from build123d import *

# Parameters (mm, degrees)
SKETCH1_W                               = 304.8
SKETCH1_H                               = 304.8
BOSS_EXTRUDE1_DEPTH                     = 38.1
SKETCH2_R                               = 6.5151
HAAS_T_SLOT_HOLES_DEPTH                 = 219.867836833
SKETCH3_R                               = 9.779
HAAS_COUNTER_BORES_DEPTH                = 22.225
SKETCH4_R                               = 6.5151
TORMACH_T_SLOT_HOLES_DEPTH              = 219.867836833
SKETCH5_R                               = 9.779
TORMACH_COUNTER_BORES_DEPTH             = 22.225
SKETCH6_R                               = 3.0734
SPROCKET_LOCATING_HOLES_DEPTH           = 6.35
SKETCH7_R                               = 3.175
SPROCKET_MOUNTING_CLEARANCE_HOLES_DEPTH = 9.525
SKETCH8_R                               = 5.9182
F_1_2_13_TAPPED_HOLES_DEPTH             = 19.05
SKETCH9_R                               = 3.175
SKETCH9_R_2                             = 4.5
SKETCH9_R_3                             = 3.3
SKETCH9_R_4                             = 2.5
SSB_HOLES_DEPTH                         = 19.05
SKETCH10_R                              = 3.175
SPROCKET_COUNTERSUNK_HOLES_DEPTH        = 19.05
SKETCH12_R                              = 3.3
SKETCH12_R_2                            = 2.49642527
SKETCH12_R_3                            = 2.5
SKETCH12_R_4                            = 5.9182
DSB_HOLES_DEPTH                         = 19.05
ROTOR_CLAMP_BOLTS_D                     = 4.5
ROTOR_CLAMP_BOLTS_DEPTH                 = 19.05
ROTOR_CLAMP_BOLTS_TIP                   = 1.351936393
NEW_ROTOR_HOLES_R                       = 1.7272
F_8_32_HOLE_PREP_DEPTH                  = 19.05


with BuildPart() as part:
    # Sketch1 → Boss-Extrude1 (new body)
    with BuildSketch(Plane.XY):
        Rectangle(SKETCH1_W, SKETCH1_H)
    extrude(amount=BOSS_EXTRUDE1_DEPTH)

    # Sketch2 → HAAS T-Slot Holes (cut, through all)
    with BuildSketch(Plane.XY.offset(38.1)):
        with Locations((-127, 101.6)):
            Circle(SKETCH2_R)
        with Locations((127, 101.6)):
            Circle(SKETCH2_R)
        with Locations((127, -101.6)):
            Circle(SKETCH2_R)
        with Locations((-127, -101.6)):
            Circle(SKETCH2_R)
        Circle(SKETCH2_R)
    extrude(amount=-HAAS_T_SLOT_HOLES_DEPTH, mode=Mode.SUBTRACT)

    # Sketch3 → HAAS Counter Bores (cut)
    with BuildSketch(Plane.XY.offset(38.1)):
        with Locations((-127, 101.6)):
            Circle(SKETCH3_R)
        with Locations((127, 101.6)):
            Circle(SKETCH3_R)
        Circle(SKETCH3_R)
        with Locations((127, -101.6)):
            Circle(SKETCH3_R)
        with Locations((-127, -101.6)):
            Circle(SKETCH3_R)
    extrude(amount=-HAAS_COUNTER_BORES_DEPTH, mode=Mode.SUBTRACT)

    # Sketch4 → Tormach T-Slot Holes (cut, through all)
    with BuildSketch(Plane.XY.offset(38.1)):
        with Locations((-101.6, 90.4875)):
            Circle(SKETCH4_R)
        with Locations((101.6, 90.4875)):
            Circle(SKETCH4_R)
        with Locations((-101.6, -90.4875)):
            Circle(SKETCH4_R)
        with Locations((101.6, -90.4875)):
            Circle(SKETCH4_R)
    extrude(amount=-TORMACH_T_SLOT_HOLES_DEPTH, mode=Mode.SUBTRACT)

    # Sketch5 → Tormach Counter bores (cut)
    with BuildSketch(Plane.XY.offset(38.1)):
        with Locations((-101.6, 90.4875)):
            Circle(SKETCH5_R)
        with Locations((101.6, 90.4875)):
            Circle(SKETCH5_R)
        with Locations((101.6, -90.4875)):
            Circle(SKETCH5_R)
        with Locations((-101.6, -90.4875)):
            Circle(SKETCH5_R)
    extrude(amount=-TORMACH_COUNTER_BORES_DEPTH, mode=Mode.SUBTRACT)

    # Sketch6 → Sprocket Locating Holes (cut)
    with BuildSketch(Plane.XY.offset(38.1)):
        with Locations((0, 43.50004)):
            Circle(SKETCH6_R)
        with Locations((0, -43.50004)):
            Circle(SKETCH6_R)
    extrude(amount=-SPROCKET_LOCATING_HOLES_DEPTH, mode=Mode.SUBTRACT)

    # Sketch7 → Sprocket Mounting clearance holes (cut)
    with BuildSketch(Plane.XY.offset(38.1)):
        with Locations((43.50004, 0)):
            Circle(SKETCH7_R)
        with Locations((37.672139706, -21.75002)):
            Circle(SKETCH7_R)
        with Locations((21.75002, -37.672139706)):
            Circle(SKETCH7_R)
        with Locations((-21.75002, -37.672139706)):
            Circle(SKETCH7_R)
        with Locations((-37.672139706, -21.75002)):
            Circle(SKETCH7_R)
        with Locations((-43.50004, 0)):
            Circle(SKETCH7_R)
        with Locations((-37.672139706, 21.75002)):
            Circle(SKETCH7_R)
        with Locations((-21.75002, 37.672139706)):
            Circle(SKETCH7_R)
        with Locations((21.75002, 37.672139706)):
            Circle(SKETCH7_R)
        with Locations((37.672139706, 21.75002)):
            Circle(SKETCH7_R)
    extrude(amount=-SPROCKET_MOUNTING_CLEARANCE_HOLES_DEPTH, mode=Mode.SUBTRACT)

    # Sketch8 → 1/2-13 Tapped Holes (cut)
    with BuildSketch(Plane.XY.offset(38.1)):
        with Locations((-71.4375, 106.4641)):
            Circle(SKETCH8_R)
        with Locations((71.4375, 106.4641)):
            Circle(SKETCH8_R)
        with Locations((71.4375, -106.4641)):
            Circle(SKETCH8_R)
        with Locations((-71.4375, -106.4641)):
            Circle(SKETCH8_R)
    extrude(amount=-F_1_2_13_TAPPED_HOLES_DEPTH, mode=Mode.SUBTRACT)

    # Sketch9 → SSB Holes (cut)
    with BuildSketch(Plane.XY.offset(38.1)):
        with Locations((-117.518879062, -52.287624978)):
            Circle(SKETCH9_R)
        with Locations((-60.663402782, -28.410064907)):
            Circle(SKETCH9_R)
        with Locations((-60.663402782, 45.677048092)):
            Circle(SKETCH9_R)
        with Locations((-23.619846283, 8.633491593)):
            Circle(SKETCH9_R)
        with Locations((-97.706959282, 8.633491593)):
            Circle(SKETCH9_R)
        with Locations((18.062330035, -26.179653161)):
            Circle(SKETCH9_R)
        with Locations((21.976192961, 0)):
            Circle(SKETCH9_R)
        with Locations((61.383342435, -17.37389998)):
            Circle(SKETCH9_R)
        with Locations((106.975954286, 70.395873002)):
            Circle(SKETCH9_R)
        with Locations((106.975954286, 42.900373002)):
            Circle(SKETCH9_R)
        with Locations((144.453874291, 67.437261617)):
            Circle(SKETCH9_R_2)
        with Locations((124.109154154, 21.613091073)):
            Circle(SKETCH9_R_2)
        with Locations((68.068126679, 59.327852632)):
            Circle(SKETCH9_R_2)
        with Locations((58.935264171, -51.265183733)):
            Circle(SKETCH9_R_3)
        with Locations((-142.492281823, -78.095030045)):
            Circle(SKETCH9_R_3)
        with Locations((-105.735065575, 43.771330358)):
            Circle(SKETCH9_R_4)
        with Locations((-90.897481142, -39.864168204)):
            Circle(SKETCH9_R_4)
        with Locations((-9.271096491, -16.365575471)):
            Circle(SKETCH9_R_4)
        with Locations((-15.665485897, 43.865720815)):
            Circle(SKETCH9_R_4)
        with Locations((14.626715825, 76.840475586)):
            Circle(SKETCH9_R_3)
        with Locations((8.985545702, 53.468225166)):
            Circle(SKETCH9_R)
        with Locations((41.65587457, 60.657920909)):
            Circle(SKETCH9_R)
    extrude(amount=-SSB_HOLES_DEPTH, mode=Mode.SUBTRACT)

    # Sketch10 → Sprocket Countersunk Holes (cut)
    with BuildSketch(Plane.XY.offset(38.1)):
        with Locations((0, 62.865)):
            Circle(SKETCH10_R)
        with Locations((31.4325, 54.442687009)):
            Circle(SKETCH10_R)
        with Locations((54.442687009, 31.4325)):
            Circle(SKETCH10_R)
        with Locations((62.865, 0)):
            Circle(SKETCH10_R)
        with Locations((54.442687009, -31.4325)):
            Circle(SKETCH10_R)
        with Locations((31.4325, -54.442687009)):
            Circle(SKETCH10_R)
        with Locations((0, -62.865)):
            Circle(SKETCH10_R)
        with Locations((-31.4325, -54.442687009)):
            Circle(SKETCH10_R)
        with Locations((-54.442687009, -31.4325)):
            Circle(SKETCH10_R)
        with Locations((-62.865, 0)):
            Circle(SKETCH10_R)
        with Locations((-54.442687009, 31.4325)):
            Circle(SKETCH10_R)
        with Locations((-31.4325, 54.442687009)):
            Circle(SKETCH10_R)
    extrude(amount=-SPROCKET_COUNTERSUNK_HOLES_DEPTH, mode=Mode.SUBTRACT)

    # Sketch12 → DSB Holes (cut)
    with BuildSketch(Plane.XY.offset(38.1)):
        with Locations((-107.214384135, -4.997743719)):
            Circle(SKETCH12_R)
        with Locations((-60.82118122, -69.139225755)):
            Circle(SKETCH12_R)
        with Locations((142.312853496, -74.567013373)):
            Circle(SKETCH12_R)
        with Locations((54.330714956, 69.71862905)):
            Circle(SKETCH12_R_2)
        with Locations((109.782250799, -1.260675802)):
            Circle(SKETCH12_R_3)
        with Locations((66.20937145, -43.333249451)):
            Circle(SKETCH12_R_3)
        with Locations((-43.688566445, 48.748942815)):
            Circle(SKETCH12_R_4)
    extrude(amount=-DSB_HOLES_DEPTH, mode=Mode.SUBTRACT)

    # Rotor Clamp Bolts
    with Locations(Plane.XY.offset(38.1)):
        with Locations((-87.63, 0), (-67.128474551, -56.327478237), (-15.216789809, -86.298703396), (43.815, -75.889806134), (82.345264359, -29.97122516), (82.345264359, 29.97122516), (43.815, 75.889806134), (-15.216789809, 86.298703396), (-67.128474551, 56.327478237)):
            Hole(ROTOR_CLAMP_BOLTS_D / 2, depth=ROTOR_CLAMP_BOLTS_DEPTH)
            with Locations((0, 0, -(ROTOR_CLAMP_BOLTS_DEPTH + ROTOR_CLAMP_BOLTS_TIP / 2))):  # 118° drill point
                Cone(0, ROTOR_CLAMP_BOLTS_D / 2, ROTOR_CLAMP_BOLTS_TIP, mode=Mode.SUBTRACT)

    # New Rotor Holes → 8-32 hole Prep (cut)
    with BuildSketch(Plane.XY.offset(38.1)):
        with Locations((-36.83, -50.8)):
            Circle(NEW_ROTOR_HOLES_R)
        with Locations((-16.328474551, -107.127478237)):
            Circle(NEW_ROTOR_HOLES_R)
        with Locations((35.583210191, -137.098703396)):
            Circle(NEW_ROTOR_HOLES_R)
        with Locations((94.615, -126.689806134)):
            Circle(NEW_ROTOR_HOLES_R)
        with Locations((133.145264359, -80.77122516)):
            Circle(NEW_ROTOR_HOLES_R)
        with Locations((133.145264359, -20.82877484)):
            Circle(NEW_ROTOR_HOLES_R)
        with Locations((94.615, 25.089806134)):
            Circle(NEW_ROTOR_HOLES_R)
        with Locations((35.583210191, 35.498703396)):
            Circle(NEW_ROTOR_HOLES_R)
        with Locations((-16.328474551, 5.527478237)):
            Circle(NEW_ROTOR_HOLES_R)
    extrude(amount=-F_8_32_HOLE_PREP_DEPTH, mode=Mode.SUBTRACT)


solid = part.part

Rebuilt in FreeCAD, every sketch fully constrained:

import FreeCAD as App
import Part
import Sketcher

V = App.Vector
Q = App.Units.Quantity


def add_polygon(sketch, points):
    """Adds a closed chain of lines whose ends are joined by coincident constraints."""
    first, n = sketch.GeometryCount, len(points)
    for a, b in zip(points, points[1:] + points[:1]):
        sketch.addGeometry(Part.LineSegment(App.Vector(*a, 0), App.Vector(*b, 0)), False)
    for i in range(n):
        sketch.addConstraint(Sketcher.Constraint("Coincident", first + i, 2, first + (i + 1) % n, 1))

doc = App.newDocument("Part")
body = doc.addObject("PartDesign::Body", "Body")

# Sketch on XY plane
sketch1 = doc.addObject("Sketcher::SketchObject", "Sketch")
body.addObject(sketch1)
sketch1.AttachmentSupport = (doc.XY_Plane, [""])
sketch1.MapMode = "FlatFace"
add_polygon(sketch1, [(-152, 152), (-152, -152), (152, -152), (152, 152)])  # lines 0-3
sketch1.addConstraint([
    Sketcher.Constraint("Vertical", 0),
    Sketcher.Constraint("Horizontal", 1),
    Sketcher.Constraint("Vertical", 2),
    Sketcher.Constraint("Horizontal", 3),
    Sketcher.Constraint("Symmetric", 0, 2, 2, 2, -1, 1),
    Sketcher.Constraint("Equal", 3, 0),
    Sketcher.Constraint("DistanceX", 1, 1, 1, 2, Q("12 in")),
])
pad1 = doc.addObject("PartDesign::Pad", "Pad")
body.addObject(pad1)
pad1.Profile = sketch1
pad1.Length = Q("1.5 in")

# Sketch on XY plane
sketch2 = doc.addObject("Sketcher::SketchObject", "Sketch001")
body.addObject(sketch2)
sketch2.AttachmentSupport = (doc.XY_Plane, [""])
sketch2.MapMode = "FlatFace"
sketch2.AttachmentOffset = App.Placement(V(0, 0, 1.5 * 25.4), App.Rotation())
sketch2.addGeometry([
    Part.Circle(V(-127, 102, 0), V(0, 0, 1), 7),  # 0
    Part.Circle(V(127, 102, 0), V(0, 0, 1), 7),  # 1
    Part.Circle(V(127, -102, 0), V(0, 0, 1), 7),  # 2
    Part.Circle(V(-127, -102, 0), V(0, 0, 1), 7),  # 3
    Part.Circle(V(0, 0, 0), V(0, 0, 1), 7),  # 4
], False)
sketch2.addConstraint([
    Sketcher.Constraint("Coincident", 4, 3, -1, 1),
    Sketcher.Constraint("Equal", 0, 1),
    Sketcher.Constraint("Equal", 1, 2),
    Sketcher.Constraint("Equal", 2, 3),
    Sketcher.Constraint("Equal", 3, 4),
    Sketcher.Constraint("Symmetric", 0, 3, 2, 3, -1, 1),
    Sketcher.Constraint("Symmetric", 1, 3, 3, 3, -1, 1),
    Sketcher.Constraint("Symmetric", 0, 3, 1, 3, -2),
    Sketcher.Constraint("Diameter", 0, Q("0.513 in")),
    Sketcher.Constraint("DistanceX", 0, 3, -1, 1, Q("5 in")),
    Sketcher.Constraint("DistanceY", -1, 1, 0, 3, Q("4 in")),
])
pocket1 = doc.addObject("PartDesign::Pocket", "Pocket")
body.addObject(pocket1)
pocket1.Profile = sketch2
pocket1.Type = "ThroughAll"

# Sketch on XY plane
sketch3 = doc.addObject("Sketcher::SketchObject", "Sketch002")
body.addObject(sketch3)
sketch3.AttachmentSupport = (doc.XY_Plane, [""])
sketch3.MapMode = "FlatFace"
sketch3.AttachmentOffset = App.Placement(V(0, 0, 1.5 * 25.4), App.Rotation())
sketch3.addGeometry([
    Part.Circle(V(-127, 102, 0), V(0, 0, 1), 10),  # 0
    Part.Circle(V(127, 102, 0), V(0, 0, 1), 10),  # 1
    Part.Circle(V(0, 0, 0), V(0, 0, 1), 10),  # 2
    Part.Circle(V(127, -102, 0), V(0, 0, 1), 10),  # 3
    Part.Circle(V(-127, -102, 0), V(0, 0, 1), 10),  # 4
], False)
sketch3.addConstraint([
    Sketcher.Constraint("Coincident", 2, 3, -1, 1),
    Sketcher.Constraint("Equal", 0, 1),
    Sketcher.Constraint("Equal", 1, 2),
    Sketcher.Constraint("Equal", 2, 3),
    Sketcher.Constraint("Equal", 3, 4),
    Sketcher.Constraint("Symmetric", 0, 3, 3, 3, -1, 1),
    Sketcher.Constraint("Symmetric", 1, 3, 4, 3, -1, 1),
    Sketcher.Constraint("Symmetric", 0, 3, 1, 3, -2),
    Sketcher.Constraint("Diameter", 0, Q("0.77 in")),
    Sketcher.Constraint("DistanceX", 0, 3, -1, 1, Q("5 in")),
    Sketcher.Constraint("DistanceY", -1, 1, 0, 3, Q("4 in")),
])
pocket2 = doc.addObject("PartDesign::Pocket", "Pocket001")
body.addObject(pocket2)
pocket2.Profile = sketch3
pocket2.Length = Q("0.875 in")

# Sketch on XY plane
sketch4 = doc.addObject("Sketcher::SketchObject", "Sketch003")
body.addObject(sketch4)
sketch4.AttachmentSupport = (doc.XY_Plane, [""])
sketch4.MapMode = "FlatFace"
sketch4.AttachmentOffset = App.Placement(V(0, 0, 1.5 * 25.4), App.Rotation())
sketch4.addGeometry([
    Part.Circle(V(-102, 90, 0), V(0, 0, 1), 7),
    Part.Circle(V(102, 90, 0), V(0, 0, 1), 7),
    Part.Circle(V(-102, -90, 0), V(0, 0, 1), 7),
    Part.Circle(V(102, -90, 0), V(0, 0, 1), 7),
], False)
sketch4.addConstraint([
    Sketcher.Constraint("Equal", 0, 1),
    Sketcher.Constraint("Equal", 1, 2),
    Sketcher.Constraint("Equal", 2, 3),
    Sketcher.Constraint("Symmetric", 1, 3, 2, 3, -1, 1),
    Sketcher.Constraint("Symmetric", 0, 3, 3, 3, -1, 1),
    Sketcher.Constraint("Symmetric", 0, 3, 1, 3, -2),
    Sketcher.Constraint("Diameter", 0, Q("0.513 in")),
    Sketcher.Constraint("DistanceX", 0, 3, -1, 1, Q("4 in")),
    Sketcher.Constraint("DistanceY", -1, 1, 0, 3, Q("3.5625 in")),
])
pocket3 = doc.addObject("PartDesign::Pocket", "Pocket002")
body.addObject(pocket3)
pocket3.Profile = sketch4
pocket3.Type = "ThroughAll"

# Sketch on XY plane
sketch5 = doc.addObject("Sketcher::SketchObject", "Sketch004")
body.addObject(sketch5)
sketch5.AttachmentSupport = (doc.XY_Plane, [""])
sketch5.MapMode = "FlatFace"
sketch5.AttachmentOffset = App.Placement(V(0, 0, 1.5 * 25.4), App.Rotation())
sketch5.addGeometry([
    Part.Circle(V(-102, 90, 0), V(0, 0, 1), 10),
    Part.Circle(V(102, 90, 0), V(0, 0, 1), 10),
    Part.Circle(V(102, -90, 0), V(0, 0, 1), 10),
    Part.Circle(V(-102, -90, 0), V(0, 0, 1), 10),
], False)
sketch5.addConstraint([
    Sketcher.Constraint("Equal", 0, 1),
    Sketcher.Constraint("Equal", 1, 2),
    Sketcher.Constraint("Equal", 2, 3),
    Sketcher.Constraint("Symmetric", 0, 3, 2, 3, -1, 1),
    Sketcher.Constraint("Symmetric", 1, 3, 3, 3, -1, 1),
    Sketcher.Constraint("Symmetric", 0, 3, 1, 3, -2),
    Sketcher.Constraint("Diameter", 0, Q("0.77 in")),
    Sketcher.Constraint("DistanceX", 0, 3, -1, 1, Q("4 in")),
    Sketcher.Constraint("DistanceY", -1, 1, 0, 3, Q("3.5625 in")),
])
pocket4 = doc.addObject("PartDesign::Pocket", "Pocket003")
body.addObject(pocket4)
pocket4.Profile = sketch5
pocket4.Length = Q("0.875 in")

# Sketch on XY plane
sketch6 = doc.addObject("Sketcher::SketchObject", "Sketch005")
body.addObject(sketch6)
sketch6.AttachmentSupport = (doc.XY_Plane, [""])
sketch6.MapMode = "FlatFace"
sketch6.AttachmentOffset = App.Placement(V(0, 0, 1.5 * 25.4), App.Rotation())
sketch6.addGeometry([
    Part.Circle(V(0, 43.5, 0), V(0, 0, 1), 3.1),
    Part.Circle(V(0, -43.5, 0), V(0, 0, 1), 3.1),
], False)
sketch6.addConstraint([
    Sketcher.Constraint("Equal", 0, 1),
    Sketcher.Constraint("Symmetric", 0, 3, 1, 3, -1, 1),
    Sketcher.Constraint("PointOnObject", 0, 3, -2),
    Sketcher.Constraint("Diameter", 0, Q("0.242 in")),
    Sketcher.Constraint("DistanceY", -1, 1, 0, 3, Q("1.7126 in")),
])
pocket5 = doc.addObject("PartDesign::Pocket", "Pocket004")
body.addObject(pocket5)
pocket5.Profile = sketch6
pocket5.Length = Q("0.25 in")

# Sketch on XY plane
sketch7 = doc.addObject("Sketcher::SketchObject", "Sketch006")
body.addObject(sketch7)
sketch7.AttachmentSupport = (doc.XY_Plane, [""])
sketch7.MapMode = "FlatFace"
sketch7.AttachmentOffset = App.Placement(V(0, 0, 1.5 * 25.4), App.Rotation())
sketch7.addGeometry([
    Part.Circle(V(43.5, 0, 0), V(0, 0, 1), 3.2),  # 0
    Part.Circle(V(37.7, -21.8, 0), V(0, 0, 1), 3.2),  # 1
    Part.Circle(V(21.8, -37.7, 0), V(0, 0, 1), 3.2),  # 2
    Part.Circle(V(-21.8, -37.7, 0), V(0, 0, 1), 3.2),  # 3
    Part.Circle(V(-37.7, -21.8, 0), V(0, 0, 1), 3.2),  # 4
    Part.Circle(V(-43.5, 0, 0), V(0, 0, 1), 3.2),  # 5
    Part.Circle(V(-37.7, 21.8, 0), V(0, 0, 1), 3.2),  # 6
    Part.Circle(V(-21.8, 37.7, 0), V(0, 0, 1), 3.2),  # 7
    Part.Circle(V(21.8, 37.7, 0), V(0, 0, 1), 3.2),  # 8
    Part.Circle(V(37.7, 21.8, 0), V(0, 0, 1), 3.2),  # 9
], False)
sketch7.addConstraint([
    Sketcher.Constraint("Equal", 0, 1),
    Sketcher.Constraint("Equal", 1, 2),
    Sketcher.Constraint("Equal", 2, 3),
    Sketcher.Constraint("Equal", 3, 4),
    Sketcher.Constraint("Equal", 4, 5),
    Sketcher.Constraint("Equal", 5, 6),
    Sketcher.Constraint("Equal", 6, 7),
    Sketcher.Constraint("Equal", 7, 8),
    Sketcher.Constraint("Equal", 8, 9),
    Sketcher.Constraint("Symmetric", 0, 3, 5, 3, -1, 1),
    Sketcher.Constraint("Symmetric", 1, 3, 6, 3, -1, 1),
    Sketcher.Constraint("Symmetric", 2, 3, 7, 3, -1, 1),
    Sketcher.Constraint("Symmetric", 3, 3, 8, 3, -1, 1),
    Sketcher.Constraint("Symmetric", 4, 3, 9, 3, -1, 1),
    Sketcher.Constraint("Symmetric", 2, 3, 3, 3, -2),
    Sketcher.Constraint("Symmetric", 1, 3, 4, 3, -2),
    Sketcher.Constraint("PointOnObject", 0, 3, -1),
    Sketcher.Constraint("Diameter", 0, Q("0.25 in")),
    Sketcher.Constraint("DistanceX", -1, 1, 0, 3, Q("1.7126 in")),
    Sketcher.Constraint("DistanceY", 1, 3, -1, 1, Q("0.8563 in")),
    Sketcher.Constraint("DistanceX", -1, 1, 2, 3, Q("0.8563 in")),
    Sketcher.Constraint("DistanceX", 1, 3, 0, 3, 5.8279),
    Sketcher.Constraint("DistanceY", 2, 3, -1, 1, 37.67214),
])
pocket6 = doc.addObject("PartDesign::Pocket", "Pocket005")
body.addObject(pocket6)
pocket6.Profile = sketch7
pocket6.Length = Q("0.375 in")

# Sketch on XY plane
sketch8 = doc.addObject("Sketcher::SketchObject", "Sketch007")
body.addObject(sketch8)
sketch8.AttachmentSupport = (doc.XY_Plane, [""])
sketch8.MapMode = "FlatFace"
sketch8.AttachmentOffset = App.Placement(V(0, 0, 1.5 * 25.4), App.Rotation())
sketch8.addGeometry([
    Part.Circle(V(-71, 106, 0), V(0, 0, 1), 6),
    Part.Circle(V(71, 106, 0), V(0, 0, 1), 6),
    Part.Circle(V(71, -106, 0), V(0, 0, 1), 6),
    Part.Circle(V(-71, -106, 0), V(0, 0, 1), 6),
], False)
sketch8.addConstraint([
    Sketcher.Constraint("Equal", 0, 1),
    Sketcher.Constraint("Equal", 1, 2),
    Sketcher.Constraint("Equal", 2, 3),
    Sketcher.Constraint("Symmetric", 0, 3, 2, 3, -1, 1),
    Sketcher.Constraint("Symmetric", 1, 3, 3, 3, -1, 1),
    Sketcher.Constraint("Symmetric", 0, 3, 1, 3, -2),
    Sketcher.Constraint("Diameter", 0, Q("0.466 in")),
    Sketcher.Constraint("DistanceX", 0, 3, -1, 1, Q("2.8125 in")),
    Sketcher.Constraint("DistanceY", 2, 3, 1, 3, Q("8.383 in")),
])
pocket7 = doc.addObject("PartDesign::Pocket", "Pocket006")
body.addObject(pocket7)
pocket7.Profile = sketch8
pocket7.Length = Q("0.75 in")

# Sketch on XY plane
sketch9 = doc.addObject("Sketcher::SketchObject", "Sketch008")
body.addObject(sketch9)
sketch9.AttachmentSupport = (doc.XY_Plane, [""])
sketch9.MapMode = "FlatFace"
sketch9.AttachmentOffset = App.Placement(V(0, 0, 1.5 * 25.4), App.Rotation())
sketch9.addGeometry([
    Part.Circle(V(-117.5, -52.3, 0), V(0, 0, 1), 3.2),  # 0
    Part.Circle(V(-60.7, -28.4, 0), V(0, 0, 1), 3.2),  # 1
    Part.Circle(V(-60.7, 45.7, 0), V(0, 0, 1), 3.2),  # 2
    Part.Circle(V(-23.6, 8.6, 0), V(0, 0, 1), 3.2),  # 3
    Part.Circle(V(-97.7, 8.6, 0), V(0, 0, 1), 3.2),  # 4
    Part.Circle(V(18.1, -26.2, 0), V(0, 0, 1), 3.2),  # 5
    Part.Circle(V(22, 0, 0), V(0, 0, 1), 3.2),  # 6
    Part.Circle(V(61.4, -17.4, 0), V(0, 0, 1), 3.2),  # 7
    Part.Circle(V(107, 70.4, 0), V(0, 0, 1), 3.2),  # 8
    Part.Circle(V(107, 42.9, 0), V(0, 0, 1), 3.2),  # 9
    Part.Circle(V(144.5, 67.4, 0), V(0, 0, 1), 4.5),  # 10
    Part.Circle(V(124.1, 21.6, 0), V(0, 0, 1), 4.5),  # 11
    Part.Circle(V(68.1, 59.3, 0), V(0, 0, 1), 4.5),  # 12
    Part.Circle(V(58.9, -51.3, 0), V(0, 0, 1), 3.3),  # 13
    Part.Circle(V(-142.5, -78.1, 0), V(0, 0, 1), 3.3),  # 14
    Part.Circle(V(-105.7, 43.8, 0), V(0, 0, 1), 2.5),  # 15
    Part.Circle(V(-90.9, -39.9, 0), V(0, 0, 1), 2.5),  # 16
    Part.Circle(V(-9.3, -16.4, 0), V(0, 0, 1), 2.5),  # 17
    Part.Circle(V(-15.7, 43.9, 0), V(0, 0, 1), 2.5),  # 18
    Part.Circle(V(14.6, 76.8, 0), V(0, 0, 1), 3.3),  # 19
    Part.Circle(V(9, 53.5, 0), V(0, 0, 1), 3.2),  # 20
    Part.Circle(V(41.7, 60.7, 0), V(0, 0, 1), 3.2),  # 21
], False)
sketch9.addConstraint([
    Sketcher.Constraint("Equal", 0, 1),
    Sketcher.Constraint("Equal", 1, 2),
    Sketcher.Constraint("Equal", 2, 3),
    Sketcher.Constraint("Equal", 3, 4),
    Sketcher.Constraint("Equal", 4, 5),
    Sketcher.Constraint("Equal", 5, 6),
    Sketcher.Constraint("Equal", 6, 7),
    Sketcher.Constraint("Equal", 7, 8),
    Sketcher.Constraint("Equal", 8, 9),
    Sketcher.Constraint("Equal", 10, 11),
    Sketcher.Constraint("Equal", 11, 12),
    Sketcher.Constraint("Equal", 13, 14),
    Sketcher.Constraint("Equal", 15, 16),
    Sketcher.Constraint("Equal", 16, 17),
    Sketcher.Constraint("Equal", 17, 18),
    Sketcher.Constraint("Equal", 14, 19),
    Sketcher.Constraint("Equal", 9, 20),
    Sketcher.Constraint("Equal", 20, 21),
    Sketcher.Constraint("PointOnObject", 6, 3, -1),
    Sketcher.Constraint("Horizontal", 3, 3, 4, 3),
    Sketcher.Constraint("Vertical", 1, 3, 2, 3),
    Sketcher.Constraint("Vertical", 8, 3, 9, 3),
    Sketcher.Constraint("Diameter", 0, Q("0.25 in")),
    Sketcher.Constraint("Diameter", 10, 9.0),
    Sketcher.Constraint("Diameter", 13, 6.6),
    Sketcher.Constraint("Diameter", 15, 5.0),
    Sketcher.Constraint("DistanceY", 9, 3, 8, 3, Q("1.0825 in")),
    Sketcher.Constraint("DistanceY", 7, 3, -1, 1, 17.3739),
    Sketcher.Constraint("DistanceY", 5, 3, 2, 3, 71.856701),
    Sketcher.Constraint("DistanceX", 3, 3, 8, 3, 130.595801),
    Sketcher.Constraint("DistanceX", 9, 3, 11, 3, 17.1332),
    Sketcher.Constraint("DistanceX", 14, 3, 16, 3, 51.594801),
    Sketcher.Constraint("DistanceX", 18, 3, 19, 3, 30.292202),
    Sketcher.Constraint("DistanceY", 18, 3, 21, 3, 16.7922),
    Sketcher.Constraint("DistanceX", 0, 3, -1, 1, 117.518879),
    Sketcher.Constraint("DistanceY", -1, 1, 2, 3, 45.677048),
    Sketcher.Constraint("DistanceY", -1, 1, 3, 3, 8.633492),
    Sketcher.Constraint("DistanceX", 4, 3, -1, 1, 97.706959),
    Sketcher.Constraint("DistanceX", -1, 1, 5, 3, 18.06233),
    Sketcher.Constraint("DistanceY", -1, 1, 10, 3, 67.437262),
    Sketcher.Constraint("DistanceY", -1, 1, 11, 3, 21.613091),
    Sketcher.Constraint("DistanceX", 14, 3, -1, 1, 142.492282),
    Sketcher.Constraint("DistanceY", 14, 3, -1, 1, 78.09503),
    Sketcher.Constraint("DistanceY", -1, 1, 15, 3, 43.77133),
    Sketcher.Constraint("DistanceY", 16, 3, -1, 1, 39.864168),
    Sketcher.Constraint("DistanceY", -1, 1, 18, 3, 43.865721),
    Sketcher.Constraint("DistanceY", 0, 3, 1, 3, 23.87756),
    Sketcher.Constraint("DistanceY", 1, 3, 5, 3, 2.230412),
    Sketcher.Constraint("DistanceX", 3, 3, 6, 3, 45.596039),
    Sketcher.Constraint("DistanceX", 6, 3, 7, 3, 39.407149),
    Sketcher.Constraint("DistanceY", 3, 3, 8, 3, 61.762381),
    Sketcher.Constraint("DistanceX", 8, 3, 10, 3, 37.47792),
    Sketcher.Constraint("DistanceY", 12, 3, 8, 3, 11.06802),
    Sketcher.Constraint("DistanceX", 13, 3, 7, 3, 2.448078),
    Sketcher.Constraint("DistanceY", 13, 3, 5, 3, 25.085531),
    Sketcher.Constraint("DistanceX", 14, 3, 1, 3, 81.828879),
    Sketcher.Constraint("DistanceX", 15, 3, 3, 3, 82.115219),
    Sketcher.Constraint("DistanceX", 3, 3, 17, 3, 14.34875),
    Sketcher.Constraint("DistanceY", 1, 3, 17, 3, 12.044489),
    Sketcher.Constraint("DistanceX", 3, 3, 18, 3, 7.95436),
    Sketcher.Constraint("DistanceX", 19, 3, 12, 3, 53.441411),
    Sketcher.Constraint("DistanceX", 2, 3, 19, 3, 75.290119),
    Sketcher.Constraint("DistanceX", 20, 3, 19, 3, 5.64117),
    Sketcher.Constraint("DistanceY", 20, 3, 19, 3, 23.37225),
    Sketcher.Constraint("DistanceX", 19, 3, 21, 3, 27.029159),
    Sketcher.Constraint("DistanceY", -1, 1, 19, 3, 76.840476),
])
pocket8 = doc.addObject("PartDesign::Pocket", "Pocket007")
body.addObject(pocket8)
pocket8.Profile = sketch9
pocket8.Length = Q("0.75 in")

# Sketch on XY plane
sketch10 = doc.addObject("Sketcher::SketchObject", "Sketch009")
body.addObject(sketch10)
sketch10.AttachmentSupport = (doc.XY_Plane, [""])
sketch10.MapMode = "FlatFace"
sketch10.AttachmentOffset = App.Placement(V(0, 0, 1.5 * 25.4), App.Rotation())
sketch10.addGeometry([
    Part.Circle(V(0, 62.9, 0), V(0, 0, 1), 3.2),  # 0
    Part.Circle(V(31.4, 54.4, 0), V(0, 0, 1), 3.2),  # 1
    Part.Circle(V(54.4, 31.4, 0), V(0, 0, 1), 3.2),  # 2
    Part.Circle(V(62.9, 0, 0), V(0, 0, 1), 3.2),  # 3
    Part.Circle(V(54.4, -31.4, 0), V(0, 0, 1), 3.2),  # 4
    Part.Circle(V(31.4, -54.4, 0), V(0, 0, 1), 3.2),  # 5
    Part.Circle(V(0, -62.9, 0), V(0, 0, 1), 3.2),  # 6
    Part.Circle(V(-31.4, -54.4, 0), V(0, 0, 1), 3.2),  # 7
    Part.Circle(V(-54.4, -31.4, 0), V(0, 0, 1), 3.2),  # 8
    Part.Circle(V(-62.9, 0, 0), V(0, 0, 1), 3.2),  # 9
    Part.Circle(V(-54.4, 31.4, 0), V(0, 0, 1), 3.2),  # 10
    Part.Circle(V(-31.4, 54.4, 0), V(0, 0, 1), 3.2),  # 11
], False)
sketch10.addConstraint([
    Sketcher.Constraint("Equal", 0, 1),
    Sketcher.Constraint("Equal", 1, 2),
    Sketcher.Constraint("Equal", 2, 3),
    Sketcher.Constraint("Equal", 3, 4),
    Sketcher.Constraint("Equal", 4, 5),
    Sketcher.Constraint("Equal", 5, 6),
    Sketcher.Constraint("Equal", 6, 7),
    Sketcher.Constraint("Equal", 7, 8),
    Sketcher.Constraint("Equal", 8, 9),
    Sketcher.Constraint("Equal", 9, 10),
    Sketcher.Constraint("Equal", 10, 11),
    Sketcher.Constraint("Symmetric", 0, 3, 6, 3, -1, 1),
    Sketcher.Constraint("Symmetric", 1, 3, 7, 3, -1, 1),
    Sketcher.Constraint("Symmetric", 2, 3, 8, 3, -1, 1),
    Sketcher.Constraint("Symmetric", 3, 3, 9, 3, -1, 1),
    Sketcher.Constraint("Symmetric", 4, 3, 10, 3, -1, 1),
    Sketcher.Constraint("Symmetric", 5, 3, 11, 3, -1, 1),
    Sketcher.Constraint("Symmetric", 5, 3, 7, 3, -2),
    Sketcher.Constraint("Symmetric", 4, 3, 8, 3, -2),
    Sketcher.Constraint("PointOnObject", 0, 3, -2),
    Sketcher.Constraint("PointOnObject", 3, 3, -1),
    Sketcher.Constraint("Diameter", 0, Q("0.25 in")),
    Sketcher.Constraint("DistanceY", -1, 1, 0, 3, Q("2.475 in")),
    Sketcher.Constraint("DistanceX", -1, 1, 3, 3, Q("2.475 in")),
    Sketcher.Constraint("DistanceY", 4, 3, 2, 3, Q("2.475 in")),
    Sketcher.Constraint("DistanceX", 7, 3, 5, 3, Q("2.475 in")),
    Sketcher.Constraint("DistanceY", -1, 1, 1, 3, 54.442687),
    Sketcher.Constraint("DistanceX", -1, 1, 2, 3, 54.442687),
])
pocket9 = doc.addObject("PartDesign::Pocket", "Pocket008")
body.addObject(pocket9)
pocket9.Profile = sketch10
pocket9.Length = Q("0.75 in")

# Sketch on XY plane
sketch11 = doc.addObject("Sketcher::SketchObject", "Sketch010")
body.addObject(sketch11)
sketch11.AttachmentSupport = (doc.XY_Plane, [""])
sketch11.MapMode = "FlatFace"
sketch11.AttachmentOffset = App.Placement(V(0, 0, 1.5 * 25.4), App.Rotation())
sketch11.addGeometry([
    Part.Circle(V(-107.2, -5, 0), V(0, 0, 1), 3.3),  # 0
    Part.Circle(V(-60.8, -69.1, 0), V(0, 0, 1), 3.3),  # 1
    Part.Circle(V(142.3, -74.6, 0), V(0, 0, 1), 3.3),  # 2
    Part.Circle(V(54.3, 69.7, 0), V(0, 0, 1), 2.5),  # 3
    Part.Circle(V(109.8, -1.3, 0), V(0, 0, 1), 2.5),  # 4
    Part.Circle(V(66.2, -43.3, 0), V(0, 0, 1), 2.5),  # 5
    Part.Circle(V(-43.7, 48.7, 0), V(0, 0, 1), 5.9),  # 6
], False)
sketch11.addConstraint([
    Sketcher.Constraint("Equal", 0, 1),
    Sketcher.Constraint("Equal", 1, 2),
    Sketcher.Constraint("Equal", 4, 5),
    Sketcher.Constraint("Diameter", 6, Q("0.466 in")),
    Sketcher.Constraint("Diameter", 0, 6.6),
    Sketcher.Constraint("Diameter", 4, 5.0),
    Sketcher.Constraint("Diameter", 3, 4.992851),
    Sketcher.Constraint("DistanceX", 5, 3, 2, 3, Q("2.9962001 in")),
    Sketcher.Constraint("DistanceX", 0, 3, 3, 3, 161.545099),
    Sketcher.Constraint("DistanceX", 1, 3, -1, 1, 60.821181),
    Sketcher.Constraint("DistanceY", -1, 1, 3, 3, 69.718629),
    Sketcher.Constraint("DistanceX", -1, 1, 4, 3, 109.782251),
    Sketcher.Constraint("DistanceX", -1, 1, 5, 3, 66.209371),
    Sketcher.Constraint("DistanceY", 5, 3, -1, 1, 43.333249),
    Sketcher.Constraint("DistanceY", 2, 3, 0, 3, 69.56927),
    Sketcher.Constraint("DistanceX", 3, 3, 2, 3, 87.982139),
    Sketcher.Constraint("DistanceY", 1, 3, 4, 3, 67.87855),
    Sketcher.Constraint("DistanceX", 6, 3, 3, 3, 98.019281),
    Sketcher.Constraint("DistanceY", 1, 3, 6, 3, 117.888169),
    Sketcher.Constraint("DistanceY", 0, 3, -1, 1, 4.997744),
    Sketcher.Constraint("DistanceY", 1, 3, -1, 1, 69.139226),
])
pocket10 = doc.addObject("PartDesign::Pocket", "Pocket009")
body.addObject(pocket10)
pocket10.Profile = sketch11
pocket10.Length = Q("0.75 in")

# Sketch on XY plane
sketch12 = doc.addObject("Sketcher::SketchObject", "Sketch011")
body.addObject(sketch12)
sketch12.AttachmentSupport = (doc.XY_Plane, [""])
sketch12.MapMode = "FlatFace"
sketch12.AttachmentOffset = App.Placement(V(0, 0, 1.5 * 25.4), App.Rotation())
sketch12.addGeometry([
    Part.Circle(V(-87.6, 0, 0), V(0, 0, 1), 2.2),  # 0
    Part.Circle(V(-67.1, -56.3, 0), V(0, 0, 1), 2.2),  # 1
    Part.Circle(V(-15.2, -86.3, 0), V(0, 0, 1), 2.2),  # 2
    Part.Circle(V(43.8, -75.9, 0), V(0, 0, 1), 2.2),  # 3
    Part.Circle(V(82.3, -30, 0), V(0, 0, 1), 2.2),  # 4
    Part.Circle(V(82.3, 30, 0), V(0, 0, 1), 2.2),  # 5
    Part.Circle(V(43.8, 75.9, 0), V(0, 0, 1), 2.2),  # 6
    Part.Circle(V(-15.2, 86.3, 0), V(0, 0, 1), 2.2),  # 7
    Part.Circle(V(-67.1, 56.3, 0), V(0, 0, 1), 2.2),  # 8
], False)
sketch12.addConstraint([
    Sketcher.Constraint("Equal", 0, 1),
    Sketcher.Constraint("Equal", 1, 2),
    Sketcher.Constraint("Equal", 2, 3),
    Sketcher.Constraint("Equal", 3, 4),
    Sketcher.Constraint("Equal", 4, 5),
    Sketcher.Constraint("Equal", 5, 6),
    Sketcher.Constraint("Equal", 6, 7),
    Sketcher.Constraint("Equal", 7, 8),
    Sketcher.Constraint("Symmetric", 4, 3, 5, 3, -1),
    Sketcher.Constraint("Symmetric", 3, 3, 6, 3, -1),
    Sketcher.Constraint("Symmetric", 2, 3, 7, 3, -1),
    Sketcher.Constraint("Symmetric", 1, 3, 8, 3, -1),
    Sketcher.Constraint("PointOnObject", 0, 3, -1),
    Sketcher.Constraint("Diameter", 0, 4.5),
    Sketcher.Constraint("DistanceX", 0, 3, -1, 1, Q("3.45 in")),
    Sketcher.Constraint("DistanceX", -1, 1, 3, 3, Q("1.725 in")),
    Sketcher.Constraint("DistanceY", 1, 3, -1, 1, 56.327478),
    Sketcher.Constraint("DistanceX", 2, 3, -1, 1, 15.21679),
    Sketcher.Constraint("DistanceY", 3, 3, 4, 3, 45.918581),
    Sketcher.Constraint("DistanceY", 2, 3, 4, 3, 56.327478),
    Sketcher.Constraint("DistanceX", 1, 3, 4, 3, 149.473739),
    Sketcher.Constraint("DistanceY", 4, 3, 5, 3, 59.94245),
    Sketcher.Constraint("DistanceX", 1, 3, -1, 1, 67.128475),
])
doc.recompute()
hole = doc.addObject("PartDesign::Hole", "Hole")
body.addObject(hole)
hole.Profile = sketch12
hole.ThreadType = "None"
hole.Diameter = 4.5
hole.DepthType = "Dimension"
hole.Depth = Q("0.75 in")
hole.DrillPoint = "Angled"
hole.DrillPointAngle = 118

# Sketch on XY plane
sketch13 = doc.addObject("Sketcher::SketchObject", "Sketch012")
body.addObject(sketch13)
sketch13.AttachmentSupport = (doc.XY_Plane, [""])
sketch13.MapMode = "FlatFace"
sketch13.AttachmentOffset = App.Placement(V(0, 0, 1.5 * 25.4), App.Rotation())
sketch13.addGeometry([
    Part.Circle(V(-36.8, -50.8, 0), V(0, 0, 1), 1.7),  # 0
    Part.Circle(V(-16.3, -107.1, 0), V(0, 0, 1), 1.7),  # 1
    Part.Circle(V(35.6, -137.1, 0), V(0, 0, 1), 1.7),  # 2
    Part.Circle(V(94.6, -126.7, 0), V(0, 0, 1), 1.7),  # 3
    Part.Circle(V(133.1, -80.8, 0), V(0, 0, 1), 1.7),  # 4
    Part.Circle(V(133.1, -20.8, 0), V(0, 0, 1), 1.7),  # 5
    Part.Circle(V(94.6, 25.1, 0), V(0, 0, 1), 1.7),  # 6
    Part.Circle(V(35.6, 35.5, 0), V(0, 0, 1), 1.7),  # 7
    Part.Circle(V(-16.3, 5.5, 0), V(0, 0, 1), 1.7),  # 8
], False)
sketch13.addConstraint([
    Sketcher.Constraint("Equal", 0, 1),
    Sketcher.Constraint("Equal", 1, 2),
    Sketcher.Constraint("Equal", 2, 3),
    Sketcher.Constraint("Equal", 3, 4),
    Sketcher.Constraint("Equal", 4, 5),
    Sketcher.Constraint("Equal", 5, 6),
    Sketcher.Constraint("Equal", 6, 7),
    Sketcher.Constraint("Equal", 7, 8),
    Sketcher.Constraint("Vertical", 4, 3, 5, 3),
    Sketcher.Constraint("Vertical", 3, 3, 6, 3),
    Sketcher.Constraint("Vertical", 2, 3, 7, 3),
    Sketcher.Constraint("Vertical", 1, 3, 8, 3),
    Sketcher.Constraint("Diameter", 0, Q("0.136 in")),
    Sketcher.Constraint("DistanceY", 0, 3, -1, 1, Q("2 in")),
    Sketcher.Constraint("DistanceX", 0, 3, -1, 1, Q("1.45 in")),
    Sketcher.Constraint("DistanceX", -1, 1, 3, 3, Q("3.725 in")),
    Sketcher.Constraint("DistanceY", 1, 3, -1, 1, 107.127478),
    Sketcher.Constraint("DistanceX", -1, 1, 2, 3, 35.58321),
    Sketcher.Constraint("DistanceY", -1, 1, 8, 3, 5.527478),
    Sketcher.Constraint("DistanceY", 3, 3, 4, 3, 45.918581),
    Sketcher.Constraint("DistanceY", 2, 3, 4, 3, 56.327478),
    Sketcher.Constraint("DistanceX", 1, 3, 4, 3, 149.473739),
    Sketcher.Constraint("DistanceY", 4, 3, 5, 3, 59.94245),
    Sketcher.Constraint("DistanceY", 5, 3, 6, 3, 45.918581),
    Sketcher.Constraint("DistanceY", 5, 3, 7, 3, 56.327478),
    Sketcher.Constraint("DistanceY", 1, 3, 7, 3, 142.626182),
    Sketcher.Constraint("DistanceX", 1, 3, -1, 1, 16.328475),
])
pocket11 = doc.addObject("PartDesign::Pocket", "Pocket010")
body.addObject(pocket11)
pocket11.Profile = sketch13
pocket11.Length = Q("0.75 in")

doc.recompute()
